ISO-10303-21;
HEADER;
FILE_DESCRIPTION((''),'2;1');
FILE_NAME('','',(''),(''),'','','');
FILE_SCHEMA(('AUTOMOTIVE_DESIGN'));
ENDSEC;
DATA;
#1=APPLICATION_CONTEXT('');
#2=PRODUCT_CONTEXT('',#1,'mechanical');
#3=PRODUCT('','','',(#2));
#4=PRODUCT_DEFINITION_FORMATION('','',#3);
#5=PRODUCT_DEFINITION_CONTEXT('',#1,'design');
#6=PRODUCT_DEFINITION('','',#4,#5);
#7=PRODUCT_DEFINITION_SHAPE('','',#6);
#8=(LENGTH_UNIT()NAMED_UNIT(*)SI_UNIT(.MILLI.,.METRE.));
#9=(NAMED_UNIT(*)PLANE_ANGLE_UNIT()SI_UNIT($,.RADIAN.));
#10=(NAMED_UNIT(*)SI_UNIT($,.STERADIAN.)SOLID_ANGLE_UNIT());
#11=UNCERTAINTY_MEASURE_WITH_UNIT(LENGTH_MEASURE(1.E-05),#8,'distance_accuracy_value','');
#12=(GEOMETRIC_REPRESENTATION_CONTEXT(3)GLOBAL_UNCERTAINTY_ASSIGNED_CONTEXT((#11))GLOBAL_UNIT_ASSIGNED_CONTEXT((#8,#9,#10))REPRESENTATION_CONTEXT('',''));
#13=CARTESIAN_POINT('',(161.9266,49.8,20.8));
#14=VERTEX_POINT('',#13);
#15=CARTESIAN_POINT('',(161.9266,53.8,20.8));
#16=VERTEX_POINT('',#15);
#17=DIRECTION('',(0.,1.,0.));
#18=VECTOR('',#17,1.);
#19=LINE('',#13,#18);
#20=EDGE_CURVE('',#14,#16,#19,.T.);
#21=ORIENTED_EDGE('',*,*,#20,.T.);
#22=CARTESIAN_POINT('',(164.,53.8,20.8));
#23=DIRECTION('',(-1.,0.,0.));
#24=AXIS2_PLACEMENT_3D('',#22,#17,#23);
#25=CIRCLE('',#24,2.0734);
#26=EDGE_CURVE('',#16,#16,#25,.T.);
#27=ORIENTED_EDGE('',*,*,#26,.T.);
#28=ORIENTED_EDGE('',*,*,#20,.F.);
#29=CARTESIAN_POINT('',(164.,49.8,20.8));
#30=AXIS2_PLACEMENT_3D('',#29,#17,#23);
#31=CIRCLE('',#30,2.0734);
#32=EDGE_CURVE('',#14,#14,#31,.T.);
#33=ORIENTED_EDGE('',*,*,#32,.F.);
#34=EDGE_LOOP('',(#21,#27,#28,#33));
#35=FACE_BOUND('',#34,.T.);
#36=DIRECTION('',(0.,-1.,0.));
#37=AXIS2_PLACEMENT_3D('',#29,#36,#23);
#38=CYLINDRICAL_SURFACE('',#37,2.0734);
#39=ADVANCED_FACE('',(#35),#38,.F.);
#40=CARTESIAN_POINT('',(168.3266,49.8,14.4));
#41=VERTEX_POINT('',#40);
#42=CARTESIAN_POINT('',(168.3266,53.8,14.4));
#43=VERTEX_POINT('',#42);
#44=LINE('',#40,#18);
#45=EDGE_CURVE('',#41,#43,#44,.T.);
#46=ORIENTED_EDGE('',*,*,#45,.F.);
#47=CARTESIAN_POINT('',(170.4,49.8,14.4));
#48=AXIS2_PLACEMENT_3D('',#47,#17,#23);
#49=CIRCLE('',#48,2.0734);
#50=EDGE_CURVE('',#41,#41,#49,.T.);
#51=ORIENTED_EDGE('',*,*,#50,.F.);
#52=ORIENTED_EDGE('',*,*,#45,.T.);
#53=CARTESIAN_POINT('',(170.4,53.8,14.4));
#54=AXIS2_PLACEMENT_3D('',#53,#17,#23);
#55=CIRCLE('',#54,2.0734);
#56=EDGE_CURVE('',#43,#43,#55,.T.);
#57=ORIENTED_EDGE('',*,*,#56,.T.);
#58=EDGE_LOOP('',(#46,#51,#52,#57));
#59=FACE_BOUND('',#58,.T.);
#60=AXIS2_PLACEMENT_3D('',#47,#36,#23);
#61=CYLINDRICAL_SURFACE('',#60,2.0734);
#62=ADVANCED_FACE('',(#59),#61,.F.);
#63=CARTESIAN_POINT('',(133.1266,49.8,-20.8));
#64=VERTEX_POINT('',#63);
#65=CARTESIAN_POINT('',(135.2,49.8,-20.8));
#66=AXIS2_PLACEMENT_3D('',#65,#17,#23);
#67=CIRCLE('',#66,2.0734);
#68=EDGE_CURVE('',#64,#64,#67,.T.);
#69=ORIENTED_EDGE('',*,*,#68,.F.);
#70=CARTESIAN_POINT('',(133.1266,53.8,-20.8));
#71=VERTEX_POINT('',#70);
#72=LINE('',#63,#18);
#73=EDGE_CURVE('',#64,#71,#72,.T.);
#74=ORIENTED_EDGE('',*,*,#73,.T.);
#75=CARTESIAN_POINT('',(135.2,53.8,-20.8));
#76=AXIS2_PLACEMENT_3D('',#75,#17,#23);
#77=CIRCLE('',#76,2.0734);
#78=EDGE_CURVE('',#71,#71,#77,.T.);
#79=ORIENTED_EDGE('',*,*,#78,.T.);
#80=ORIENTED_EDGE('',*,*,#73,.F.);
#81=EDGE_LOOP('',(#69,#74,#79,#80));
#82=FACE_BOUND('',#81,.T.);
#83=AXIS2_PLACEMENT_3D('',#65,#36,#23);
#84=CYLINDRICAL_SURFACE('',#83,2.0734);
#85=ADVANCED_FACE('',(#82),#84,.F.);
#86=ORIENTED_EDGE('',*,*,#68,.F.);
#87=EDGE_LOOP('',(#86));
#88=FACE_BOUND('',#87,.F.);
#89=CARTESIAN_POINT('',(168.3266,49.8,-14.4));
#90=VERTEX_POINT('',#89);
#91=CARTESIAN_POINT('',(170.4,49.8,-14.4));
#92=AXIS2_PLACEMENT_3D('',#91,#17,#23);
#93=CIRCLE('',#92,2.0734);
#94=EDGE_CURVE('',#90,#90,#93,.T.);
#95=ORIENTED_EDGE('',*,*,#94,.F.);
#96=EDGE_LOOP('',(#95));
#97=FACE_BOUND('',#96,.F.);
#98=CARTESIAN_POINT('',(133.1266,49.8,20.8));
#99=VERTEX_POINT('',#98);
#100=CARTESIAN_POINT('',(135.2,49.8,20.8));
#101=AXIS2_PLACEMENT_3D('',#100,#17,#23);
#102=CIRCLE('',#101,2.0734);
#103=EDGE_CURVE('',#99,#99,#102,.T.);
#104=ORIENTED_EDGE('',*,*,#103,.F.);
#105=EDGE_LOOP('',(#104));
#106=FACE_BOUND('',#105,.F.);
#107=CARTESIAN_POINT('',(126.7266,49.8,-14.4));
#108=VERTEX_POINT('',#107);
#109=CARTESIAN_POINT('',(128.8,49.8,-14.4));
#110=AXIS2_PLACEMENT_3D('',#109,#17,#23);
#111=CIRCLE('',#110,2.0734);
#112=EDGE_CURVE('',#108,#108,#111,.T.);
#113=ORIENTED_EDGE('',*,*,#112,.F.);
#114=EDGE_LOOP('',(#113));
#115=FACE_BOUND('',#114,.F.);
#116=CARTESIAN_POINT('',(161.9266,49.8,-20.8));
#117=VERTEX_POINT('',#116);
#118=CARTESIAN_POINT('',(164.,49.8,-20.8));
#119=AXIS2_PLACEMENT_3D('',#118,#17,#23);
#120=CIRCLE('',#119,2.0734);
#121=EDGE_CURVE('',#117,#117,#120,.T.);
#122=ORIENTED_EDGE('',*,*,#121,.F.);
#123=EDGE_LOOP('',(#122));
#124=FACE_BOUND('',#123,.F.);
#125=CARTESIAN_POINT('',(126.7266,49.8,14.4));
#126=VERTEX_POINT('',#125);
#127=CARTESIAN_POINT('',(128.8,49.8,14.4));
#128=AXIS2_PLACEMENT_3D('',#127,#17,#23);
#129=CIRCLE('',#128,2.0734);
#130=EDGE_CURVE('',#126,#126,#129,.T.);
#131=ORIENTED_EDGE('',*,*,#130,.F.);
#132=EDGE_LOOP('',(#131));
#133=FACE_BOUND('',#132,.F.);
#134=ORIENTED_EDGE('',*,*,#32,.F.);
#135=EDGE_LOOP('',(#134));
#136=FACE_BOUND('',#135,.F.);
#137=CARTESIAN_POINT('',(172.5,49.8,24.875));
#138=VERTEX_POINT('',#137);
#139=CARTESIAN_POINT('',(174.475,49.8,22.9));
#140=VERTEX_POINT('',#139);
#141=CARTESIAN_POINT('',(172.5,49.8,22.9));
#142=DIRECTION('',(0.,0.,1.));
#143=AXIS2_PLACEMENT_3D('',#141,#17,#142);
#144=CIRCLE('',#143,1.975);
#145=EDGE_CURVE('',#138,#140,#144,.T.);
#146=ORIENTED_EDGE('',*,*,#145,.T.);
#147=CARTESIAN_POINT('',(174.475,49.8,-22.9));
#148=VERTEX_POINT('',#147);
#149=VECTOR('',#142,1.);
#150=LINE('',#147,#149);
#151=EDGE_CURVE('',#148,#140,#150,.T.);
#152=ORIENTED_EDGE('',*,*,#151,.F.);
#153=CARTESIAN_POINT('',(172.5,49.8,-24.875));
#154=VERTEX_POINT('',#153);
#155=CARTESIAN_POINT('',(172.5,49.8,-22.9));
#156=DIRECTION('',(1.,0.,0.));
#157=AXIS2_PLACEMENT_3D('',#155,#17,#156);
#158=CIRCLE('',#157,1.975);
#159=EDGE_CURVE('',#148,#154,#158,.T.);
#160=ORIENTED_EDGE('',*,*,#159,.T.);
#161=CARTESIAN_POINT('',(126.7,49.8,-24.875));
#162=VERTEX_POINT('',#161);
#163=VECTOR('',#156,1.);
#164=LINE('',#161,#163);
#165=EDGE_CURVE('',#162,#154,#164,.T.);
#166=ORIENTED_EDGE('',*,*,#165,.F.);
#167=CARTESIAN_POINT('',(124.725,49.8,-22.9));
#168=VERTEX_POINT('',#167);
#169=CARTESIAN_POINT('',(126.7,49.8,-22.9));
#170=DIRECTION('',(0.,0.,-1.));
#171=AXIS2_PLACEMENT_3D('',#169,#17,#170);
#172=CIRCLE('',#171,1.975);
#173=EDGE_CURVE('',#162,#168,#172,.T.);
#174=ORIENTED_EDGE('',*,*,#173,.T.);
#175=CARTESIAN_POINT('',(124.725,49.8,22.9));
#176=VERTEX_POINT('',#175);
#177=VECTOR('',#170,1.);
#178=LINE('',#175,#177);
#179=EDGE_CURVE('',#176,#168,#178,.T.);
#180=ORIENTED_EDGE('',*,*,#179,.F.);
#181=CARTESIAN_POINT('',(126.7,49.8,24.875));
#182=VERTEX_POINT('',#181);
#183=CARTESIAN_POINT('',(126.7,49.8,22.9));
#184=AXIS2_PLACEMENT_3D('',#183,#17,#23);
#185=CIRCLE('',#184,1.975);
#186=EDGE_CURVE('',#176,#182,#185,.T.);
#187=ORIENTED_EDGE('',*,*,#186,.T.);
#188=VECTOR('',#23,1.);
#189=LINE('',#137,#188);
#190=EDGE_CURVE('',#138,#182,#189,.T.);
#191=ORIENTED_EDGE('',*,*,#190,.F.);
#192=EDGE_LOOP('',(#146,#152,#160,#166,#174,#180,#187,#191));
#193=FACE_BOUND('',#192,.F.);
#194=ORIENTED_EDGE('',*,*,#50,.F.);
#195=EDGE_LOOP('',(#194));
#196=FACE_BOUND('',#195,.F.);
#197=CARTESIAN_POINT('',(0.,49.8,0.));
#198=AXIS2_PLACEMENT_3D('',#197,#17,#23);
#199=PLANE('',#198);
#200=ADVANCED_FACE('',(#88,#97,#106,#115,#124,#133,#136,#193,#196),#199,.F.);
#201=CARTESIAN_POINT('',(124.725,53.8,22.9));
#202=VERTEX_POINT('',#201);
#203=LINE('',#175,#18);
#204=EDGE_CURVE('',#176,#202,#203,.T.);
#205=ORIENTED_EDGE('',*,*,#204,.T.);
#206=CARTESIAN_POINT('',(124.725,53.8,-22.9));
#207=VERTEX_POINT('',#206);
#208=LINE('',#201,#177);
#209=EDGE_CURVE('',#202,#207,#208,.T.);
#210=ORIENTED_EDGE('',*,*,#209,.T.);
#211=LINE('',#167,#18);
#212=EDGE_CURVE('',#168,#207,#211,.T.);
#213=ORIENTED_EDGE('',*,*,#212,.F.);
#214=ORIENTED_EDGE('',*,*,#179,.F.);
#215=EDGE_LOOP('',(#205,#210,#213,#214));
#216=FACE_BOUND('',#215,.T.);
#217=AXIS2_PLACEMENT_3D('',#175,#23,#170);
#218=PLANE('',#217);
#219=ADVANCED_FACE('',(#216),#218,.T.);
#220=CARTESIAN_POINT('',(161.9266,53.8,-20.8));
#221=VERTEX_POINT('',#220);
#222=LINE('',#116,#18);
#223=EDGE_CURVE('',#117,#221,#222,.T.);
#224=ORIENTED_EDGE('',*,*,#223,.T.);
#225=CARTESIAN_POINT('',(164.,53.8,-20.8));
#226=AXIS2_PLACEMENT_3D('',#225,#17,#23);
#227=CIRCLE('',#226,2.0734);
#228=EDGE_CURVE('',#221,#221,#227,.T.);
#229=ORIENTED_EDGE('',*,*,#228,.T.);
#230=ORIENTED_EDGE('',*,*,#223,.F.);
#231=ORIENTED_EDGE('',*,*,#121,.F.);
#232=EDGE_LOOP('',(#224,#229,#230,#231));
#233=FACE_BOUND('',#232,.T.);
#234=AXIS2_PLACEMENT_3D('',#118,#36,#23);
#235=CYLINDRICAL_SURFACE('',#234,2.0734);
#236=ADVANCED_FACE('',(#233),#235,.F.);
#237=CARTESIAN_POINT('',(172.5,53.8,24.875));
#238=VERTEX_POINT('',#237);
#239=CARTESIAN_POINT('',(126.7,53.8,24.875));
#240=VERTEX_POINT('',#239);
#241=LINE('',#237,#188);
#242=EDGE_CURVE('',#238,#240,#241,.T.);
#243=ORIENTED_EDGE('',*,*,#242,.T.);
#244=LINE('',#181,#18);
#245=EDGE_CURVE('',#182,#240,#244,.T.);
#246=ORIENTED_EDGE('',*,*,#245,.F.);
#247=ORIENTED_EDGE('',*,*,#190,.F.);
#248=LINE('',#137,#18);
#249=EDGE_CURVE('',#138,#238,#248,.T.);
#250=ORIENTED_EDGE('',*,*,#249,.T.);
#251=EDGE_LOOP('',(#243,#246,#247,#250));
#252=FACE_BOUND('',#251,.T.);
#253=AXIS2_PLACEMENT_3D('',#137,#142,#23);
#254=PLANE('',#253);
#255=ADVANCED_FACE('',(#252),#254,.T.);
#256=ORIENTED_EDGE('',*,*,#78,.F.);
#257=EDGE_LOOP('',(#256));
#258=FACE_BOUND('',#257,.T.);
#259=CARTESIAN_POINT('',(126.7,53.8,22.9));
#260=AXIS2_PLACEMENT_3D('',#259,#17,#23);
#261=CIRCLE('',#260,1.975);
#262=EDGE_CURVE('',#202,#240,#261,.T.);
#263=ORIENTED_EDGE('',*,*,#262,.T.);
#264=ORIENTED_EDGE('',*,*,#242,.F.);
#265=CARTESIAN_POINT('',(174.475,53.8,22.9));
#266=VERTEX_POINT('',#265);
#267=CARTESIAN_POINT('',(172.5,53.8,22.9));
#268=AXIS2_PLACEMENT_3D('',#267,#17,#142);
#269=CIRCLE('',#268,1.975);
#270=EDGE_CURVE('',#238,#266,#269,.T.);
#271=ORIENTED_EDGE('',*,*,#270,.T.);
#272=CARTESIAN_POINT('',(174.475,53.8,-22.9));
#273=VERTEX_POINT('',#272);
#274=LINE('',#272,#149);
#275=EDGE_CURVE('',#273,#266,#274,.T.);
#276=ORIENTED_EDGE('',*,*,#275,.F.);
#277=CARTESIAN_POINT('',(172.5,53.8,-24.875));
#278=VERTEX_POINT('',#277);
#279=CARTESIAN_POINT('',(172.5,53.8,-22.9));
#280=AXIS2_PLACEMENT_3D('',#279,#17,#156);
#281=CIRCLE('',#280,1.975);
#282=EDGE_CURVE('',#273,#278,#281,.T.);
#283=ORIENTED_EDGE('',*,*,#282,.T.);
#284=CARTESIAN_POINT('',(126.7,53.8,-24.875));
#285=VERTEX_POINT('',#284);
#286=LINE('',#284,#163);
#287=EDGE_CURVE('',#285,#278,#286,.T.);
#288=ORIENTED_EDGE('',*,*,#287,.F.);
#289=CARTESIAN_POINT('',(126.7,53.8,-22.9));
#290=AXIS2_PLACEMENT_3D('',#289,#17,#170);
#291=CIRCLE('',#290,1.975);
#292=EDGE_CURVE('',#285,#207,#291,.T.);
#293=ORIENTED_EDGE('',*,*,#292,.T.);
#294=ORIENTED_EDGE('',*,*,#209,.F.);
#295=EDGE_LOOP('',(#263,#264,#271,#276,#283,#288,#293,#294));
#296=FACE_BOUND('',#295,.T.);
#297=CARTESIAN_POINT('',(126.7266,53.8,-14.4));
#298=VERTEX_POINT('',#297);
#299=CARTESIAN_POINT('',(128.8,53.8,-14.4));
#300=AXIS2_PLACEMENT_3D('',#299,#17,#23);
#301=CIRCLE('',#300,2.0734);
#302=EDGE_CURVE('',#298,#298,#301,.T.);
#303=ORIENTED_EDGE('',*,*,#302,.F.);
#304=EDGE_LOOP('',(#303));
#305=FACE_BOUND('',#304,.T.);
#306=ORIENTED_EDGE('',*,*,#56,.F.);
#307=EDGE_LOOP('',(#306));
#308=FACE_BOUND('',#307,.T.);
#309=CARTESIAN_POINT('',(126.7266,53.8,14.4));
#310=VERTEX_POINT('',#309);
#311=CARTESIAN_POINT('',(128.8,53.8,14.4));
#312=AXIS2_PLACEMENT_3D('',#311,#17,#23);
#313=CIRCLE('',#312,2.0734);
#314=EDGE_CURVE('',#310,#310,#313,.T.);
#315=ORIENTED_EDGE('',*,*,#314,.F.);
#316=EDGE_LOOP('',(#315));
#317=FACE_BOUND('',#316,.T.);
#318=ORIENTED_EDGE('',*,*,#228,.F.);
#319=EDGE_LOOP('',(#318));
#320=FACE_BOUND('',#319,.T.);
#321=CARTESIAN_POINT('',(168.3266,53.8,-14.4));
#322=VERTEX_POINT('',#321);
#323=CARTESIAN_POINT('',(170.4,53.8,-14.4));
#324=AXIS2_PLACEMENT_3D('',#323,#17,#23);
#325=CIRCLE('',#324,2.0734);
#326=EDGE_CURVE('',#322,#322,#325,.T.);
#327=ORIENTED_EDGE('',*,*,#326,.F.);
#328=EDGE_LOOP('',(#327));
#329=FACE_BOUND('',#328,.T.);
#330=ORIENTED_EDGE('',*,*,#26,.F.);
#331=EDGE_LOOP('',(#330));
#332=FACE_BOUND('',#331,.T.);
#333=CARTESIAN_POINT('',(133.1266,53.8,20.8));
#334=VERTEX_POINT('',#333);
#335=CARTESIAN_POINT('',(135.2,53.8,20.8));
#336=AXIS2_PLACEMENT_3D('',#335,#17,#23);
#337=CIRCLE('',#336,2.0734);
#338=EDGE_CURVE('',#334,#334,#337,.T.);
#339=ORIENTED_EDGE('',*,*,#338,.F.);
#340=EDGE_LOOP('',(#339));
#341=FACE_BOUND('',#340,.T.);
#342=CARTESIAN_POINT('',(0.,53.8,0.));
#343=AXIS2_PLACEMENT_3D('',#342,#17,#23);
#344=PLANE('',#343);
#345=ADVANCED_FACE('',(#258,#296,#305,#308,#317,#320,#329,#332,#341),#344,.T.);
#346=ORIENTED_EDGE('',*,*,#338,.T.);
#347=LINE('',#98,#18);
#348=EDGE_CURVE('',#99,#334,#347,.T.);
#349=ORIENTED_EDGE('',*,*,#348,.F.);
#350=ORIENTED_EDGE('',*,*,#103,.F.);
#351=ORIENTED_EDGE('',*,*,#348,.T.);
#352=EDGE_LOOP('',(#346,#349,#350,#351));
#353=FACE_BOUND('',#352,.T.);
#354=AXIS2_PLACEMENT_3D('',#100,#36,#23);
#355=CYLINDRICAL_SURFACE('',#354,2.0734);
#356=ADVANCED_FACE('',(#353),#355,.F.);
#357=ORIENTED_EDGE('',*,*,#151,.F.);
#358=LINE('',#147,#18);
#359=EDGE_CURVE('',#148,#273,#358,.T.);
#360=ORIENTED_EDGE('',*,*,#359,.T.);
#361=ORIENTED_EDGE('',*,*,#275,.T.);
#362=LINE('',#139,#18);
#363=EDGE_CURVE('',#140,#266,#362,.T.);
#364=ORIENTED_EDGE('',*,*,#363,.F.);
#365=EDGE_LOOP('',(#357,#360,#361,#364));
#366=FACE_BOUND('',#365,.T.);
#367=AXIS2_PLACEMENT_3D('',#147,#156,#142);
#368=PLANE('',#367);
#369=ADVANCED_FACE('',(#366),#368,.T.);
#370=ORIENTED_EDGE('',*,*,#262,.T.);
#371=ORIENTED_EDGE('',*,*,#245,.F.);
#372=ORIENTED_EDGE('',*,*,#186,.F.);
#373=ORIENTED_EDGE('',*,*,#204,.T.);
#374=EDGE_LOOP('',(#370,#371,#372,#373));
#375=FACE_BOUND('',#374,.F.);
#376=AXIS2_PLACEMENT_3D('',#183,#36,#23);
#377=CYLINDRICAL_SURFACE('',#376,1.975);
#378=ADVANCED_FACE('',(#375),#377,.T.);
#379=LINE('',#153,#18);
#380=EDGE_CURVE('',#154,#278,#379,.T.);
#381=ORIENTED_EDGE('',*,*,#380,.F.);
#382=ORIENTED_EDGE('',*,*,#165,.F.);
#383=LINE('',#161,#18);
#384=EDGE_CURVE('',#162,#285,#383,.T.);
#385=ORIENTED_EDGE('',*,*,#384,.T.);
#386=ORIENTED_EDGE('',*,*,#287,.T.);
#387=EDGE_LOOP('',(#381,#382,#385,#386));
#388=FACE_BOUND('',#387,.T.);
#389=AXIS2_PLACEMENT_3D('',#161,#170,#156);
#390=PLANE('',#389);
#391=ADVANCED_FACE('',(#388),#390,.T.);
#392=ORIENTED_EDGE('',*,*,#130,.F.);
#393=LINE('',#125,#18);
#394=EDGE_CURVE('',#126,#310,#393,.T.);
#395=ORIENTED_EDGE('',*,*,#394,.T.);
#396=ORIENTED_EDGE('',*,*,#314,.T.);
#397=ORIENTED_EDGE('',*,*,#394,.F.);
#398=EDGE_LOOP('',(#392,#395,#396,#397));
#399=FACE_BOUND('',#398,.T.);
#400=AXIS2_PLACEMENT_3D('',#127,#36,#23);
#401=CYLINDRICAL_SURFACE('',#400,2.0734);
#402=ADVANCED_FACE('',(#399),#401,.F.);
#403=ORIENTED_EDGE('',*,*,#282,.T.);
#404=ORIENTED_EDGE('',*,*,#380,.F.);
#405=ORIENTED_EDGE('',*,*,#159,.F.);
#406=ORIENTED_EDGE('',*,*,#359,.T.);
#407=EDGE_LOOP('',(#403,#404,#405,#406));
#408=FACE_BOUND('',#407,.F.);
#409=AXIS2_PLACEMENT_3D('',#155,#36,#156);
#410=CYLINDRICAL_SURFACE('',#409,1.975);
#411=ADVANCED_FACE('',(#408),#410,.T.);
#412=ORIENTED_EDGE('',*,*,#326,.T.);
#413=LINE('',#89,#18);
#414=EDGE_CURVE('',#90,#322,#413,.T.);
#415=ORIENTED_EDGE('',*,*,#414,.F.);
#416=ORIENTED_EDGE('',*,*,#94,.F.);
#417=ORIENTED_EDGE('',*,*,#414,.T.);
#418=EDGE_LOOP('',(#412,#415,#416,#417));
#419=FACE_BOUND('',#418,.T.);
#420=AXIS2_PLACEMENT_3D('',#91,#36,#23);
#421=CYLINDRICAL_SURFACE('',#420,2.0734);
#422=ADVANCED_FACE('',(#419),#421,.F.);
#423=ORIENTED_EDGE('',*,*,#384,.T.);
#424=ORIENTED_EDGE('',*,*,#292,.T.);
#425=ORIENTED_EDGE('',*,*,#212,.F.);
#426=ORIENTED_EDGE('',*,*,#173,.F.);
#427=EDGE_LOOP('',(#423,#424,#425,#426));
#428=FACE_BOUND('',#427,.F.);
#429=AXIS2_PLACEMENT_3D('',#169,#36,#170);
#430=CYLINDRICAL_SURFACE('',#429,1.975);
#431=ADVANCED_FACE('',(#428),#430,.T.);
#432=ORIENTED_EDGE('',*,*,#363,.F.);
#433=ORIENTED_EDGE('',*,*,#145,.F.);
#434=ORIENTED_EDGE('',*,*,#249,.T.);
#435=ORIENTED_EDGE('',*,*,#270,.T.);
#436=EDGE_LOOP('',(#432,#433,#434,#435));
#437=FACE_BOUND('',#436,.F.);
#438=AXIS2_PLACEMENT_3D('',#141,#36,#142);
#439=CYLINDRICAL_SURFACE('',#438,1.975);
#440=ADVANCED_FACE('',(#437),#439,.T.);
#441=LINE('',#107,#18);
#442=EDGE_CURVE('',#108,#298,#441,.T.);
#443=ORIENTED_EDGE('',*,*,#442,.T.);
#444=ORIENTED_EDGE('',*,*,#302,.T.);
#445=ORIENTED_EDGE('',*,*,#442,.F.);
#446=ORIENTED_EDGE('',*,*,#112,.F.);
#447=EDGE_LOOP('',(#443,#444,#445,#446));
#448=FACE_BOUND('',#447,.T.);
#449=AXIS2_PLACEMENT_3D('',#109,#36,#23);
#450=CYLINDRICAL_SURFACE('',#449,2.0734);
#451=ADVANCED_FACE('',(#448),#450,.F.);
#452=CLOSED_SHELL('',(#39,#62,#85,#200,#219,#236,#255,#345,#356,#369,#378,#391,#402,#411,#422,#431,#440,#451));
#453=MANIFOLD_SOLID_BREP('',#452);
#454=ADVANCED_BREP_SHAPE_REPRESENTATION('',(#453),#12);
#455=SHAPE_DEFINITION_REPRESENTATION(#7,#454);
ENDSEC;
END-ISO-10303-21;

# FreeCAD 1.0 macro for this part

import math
import FreeCAD as App
import Part
import Sketcher

V = App.Vector
Q = App.Units.Quantity

doc = App.newDocument("Part")
params = doc.addObject("Spreadsheet::Sheet", "Params")
for row, (alias, value) in enumerate([
    ("sketch1_width", "45.8 mm"),
    ("pad1_length", "4 mm"),
], start=1):
    params.set(f"A{row}", alias)
    params.set(f"B{row}", "=" + value)
    params.setAlias(f"B{row}", alias)

body = doc.addObject("PartDesign::Body", "Body")

# Sketch on XZ plane
sketch1 = body.newObject("Sketcher::SketchObject", "Sketch")
sketch1.AttachmentSupport = (doc.getObject("XZ_Plane"), [""])
sketch1.MapMode = "FlatFace"
sketch1.AttachmentOffset = App.Placement(V(0, 0, -49.8), App.Rotation())
sketch1.addGeometry([
    Part.LineSegment(V(126.7, 24.875, 0), V(172.5, 24.875, 0)),  # 0
    Part.ArcOfCircle(Part.Circle(V(172.5, 22.9, 0), V(0, 0, 1), 1.975), math.radians(0), math.radians(90)),  # 1
    Part.LineSegment(V(174.475, 22.9, 0), V(174.475, -22.9, 0)),  # 2
    Part.ArcOfCircle(Part.Circle(V(172.5, -22.9, 0), V(0, 0, 1), 1.975), math.radians(-90), math.radians(0)),  # 3
    Part.LineSegment(V(172.5, -24.875, 0), V(126.7, -24.875, 0)),  # 4
    Part.ArcOfCircle(Part.Circle(V(126.7, -22.9, 0), V(0, 0, 1), 1.975), math.radians(180), math.radians(270)),  # 5
    Part.LineSegment(V(124.725, -22.9, 0), V(124.725, 22.9, 0)),  # 6
    Part.ArcOfCircle(Part.Circle(V(126.7, 22.9, 0), V(0, 0, 1), 1.975), math.radians(90), math.radians(180)),  # 7
    Part.Circle(V(164, -20.8, 0), V(0, 0, 1), 2.0734),  # 8
    Part.Circle(V(170.4, -14.4, 0), V(0, 0, 1), 2.0734),  # 9
    Part.Circle(V(164, 20.8, 0), V(0, 0, 1), 2.0734),  # 10
    Part.Circle(V(128.8, 14.4, 0), V(0, 0, 1), 2.0734),  # 11
    Part.Circle(V(135.2, 20.8, 0), V(0, 0, 1), 2.0734),  # 12
    Part.Circle(V(135.2, -20.8, 0), V(0, 0, 1), 2.0734),  # 13
    Part.Circle(V(128.8, -14.4, 0), V(0, 0, 1), 2.0734),  # 14
    Part.Circle(V(170.4, 14.4, 0), V(0, 0, 1), 2.0734),  # 15
], False)
sketch1.addConstraint([
    Sketcher.Constraint("Tangent", 0, 2, 1, 2),
    Sketcher.Constraint("Tangent", 1, 1, 2, 1),
    Sketcher.Constraint("Tangent", 2, 2, 3, 2),
    Sketcher.Constraint("Tangent", 3, 1, 4, 1),
    Sketcher.Constraint("Tangent", 4, 2, 5, 2),
    Sketcher.Constraint("Tangent", 5, 1, 6, 1),
    Sketcher.Constraint("Tangent", 6, 2, 7, 2),
    Sketcher.Constraint("Tangent", 7, 1, 0, 1),
    Sketcher.Constraint("Horizontal", 0),
    Sketcher.Constraint("Vertical", 2),
    Sketcher.Constraint("Horizontal", 4),
    Sketcher.Constraint("Vertical", 6),
    Sketcher.Constraint("Equal", 1, 3),
    Sketcher.Constraint("Equal", 3, 5),
    Sketcher.Constraint("Equal", 5, 7),
    Sketcher.Constraint("Equal", 8, 9),
    Sketcher.Constraint("Equal", 9, 10),
    Sketcher.Constraint("Equal", 10, 11),
    Sketcher.Constraint("Equal", 11, 12),
    Sketcher.Constraint("Equal", 12, 13),
    Sketcher.Constraint("Equal", 13, 14),
    Sketcher.Constraint("Equal", 14, 15),
    Sketcher.Constraint("Symmetric", 8, 3, 10, 3, -1),
    Sketcher.Constraint("Symmetric", 12, 3, 13, 3, -1),
    Sketcher.Constraint("Symmetric", 11, 3, 14, 3, -1),
    Sketcher.Constraint("Symmetric", 9, 3, 15, 3, -1),
    Sketcher.Constraint("Horizontal", 10, 3, 12, 3),
    Sketcher.Constraint("Horizontal", 9, 3, 14, 3),
    Sketcher.Constraint("Equal", 4, 2),
    Sketcher.Constraint("DistanceX", 0, 1, 0, 2, Q("45.8 mm")),
    Sketcher.Constraint("DistanceX", -1, 1, 8, 3, Q("164 mm")),
    Sketcher.Constraint("Radius", 1, Q("1.975 mm")),
    Sketcher.Constraint("Diameter", 8, Q("4.1468 mm")),
    Sketcher.Constraint("DistanceX", -1, 1, 1, 3, Q("172.5 mm")),
    Sketcher.Constraint("DistanceY", -1, 1, 1, 3, Q("22.9 mm")),
    Sketcher.Constraint("DistanceY", 8, 3, -1, 1, Q("20.8 mm")),
    Sketcher.Constraint("DistanceX", -1, 1, 9, 3, Q("170.4 mm")),
    Sketcher.Constraint("DistanceY", 9, 3, -1, 1, Q("14.4 mm")),
    Sketcher.Constraint("DistanceX", -1, 1, 11, 3, Q("128.8 mm")),
    Sketcher.Constraint("DistanceX", -1, 1, 12, 3, Q("135.2 mm")),
])
sketch1.setExpression("Constraints[29]", "Params.sketch1_width")
pad1 = body.newObject("PartDesign::Pad", "Pad")
pad1.Profile = sketch1
pad1.setExpression("Length", "Params.pad1_length")
pad1.Reversed = True

doc.recompute()
